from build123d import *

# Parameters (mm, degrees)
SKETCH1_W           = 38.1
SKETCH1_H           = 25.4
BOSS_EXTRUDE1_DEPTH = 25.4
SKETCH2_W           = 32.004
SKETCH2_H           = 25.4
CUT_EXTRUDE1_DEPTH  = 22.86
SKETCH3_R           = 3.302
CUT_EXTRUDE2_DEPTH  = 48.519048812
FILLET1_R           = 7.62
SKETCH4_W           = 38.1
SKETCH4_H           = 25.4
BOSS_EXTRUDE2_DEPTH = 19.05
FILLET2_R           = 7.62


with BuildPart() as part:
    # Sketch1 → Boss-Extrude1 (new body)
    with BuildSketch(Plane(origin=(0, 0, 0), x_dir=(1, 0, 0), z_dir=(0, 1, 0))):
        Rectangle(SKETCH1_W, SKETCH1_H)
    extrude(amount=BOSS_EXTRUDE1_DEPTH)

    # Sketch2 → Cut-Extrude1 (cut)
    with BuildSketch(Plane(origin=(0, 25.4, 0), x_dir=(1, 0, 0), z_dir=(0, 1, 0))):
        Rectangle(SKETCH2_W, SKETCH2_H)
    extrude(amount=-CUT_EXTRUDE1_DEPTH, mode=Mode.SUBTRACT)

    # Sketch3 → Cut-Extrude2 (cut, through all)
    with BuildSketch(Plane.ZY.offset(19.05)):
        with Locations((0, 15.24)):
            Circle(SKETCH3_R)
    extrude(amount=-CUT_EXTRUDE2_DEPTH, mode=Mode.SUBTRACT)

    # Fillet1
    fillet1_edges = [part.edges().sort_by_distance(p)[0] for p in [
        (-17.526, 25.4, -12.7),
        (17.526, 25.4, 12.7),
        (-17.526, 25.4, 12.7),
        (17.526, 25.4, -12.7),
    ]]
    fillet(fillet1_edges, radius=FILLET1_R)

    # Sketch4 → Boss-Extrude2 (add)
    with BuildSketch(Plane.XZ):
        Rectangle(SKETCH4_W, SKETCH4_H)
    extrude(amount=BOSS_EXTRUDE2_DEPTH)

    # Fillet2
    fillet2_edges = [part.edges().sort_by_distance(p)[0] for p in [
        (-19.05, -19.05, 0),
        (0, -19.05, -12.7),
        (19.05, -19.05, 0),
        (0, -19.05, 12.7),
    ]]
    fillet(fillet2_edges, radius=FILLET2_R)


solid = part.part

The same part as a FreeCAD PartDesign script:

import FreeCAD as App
import Part
import Sketcher

V = App.Vector
Q = App.Units.Quantity


def edges_at(feature, points):
    """Names of the edges that pass closest to the given points."""
    edges = feature.Shape.Edges
    near = lambda p: min(range(len(edges)), key=lambda i: edges[i].distToShape(Part.Vertex(*p))[0])
    return sorted({f"Edge{near(p) + 1}" for p in points})

doc = App.newDocument("Part")
body = doc.addObject("PartDesign::Body", "Body")

sketch1 = body.newObject("Sketcher::SketchObject", "Sketch")
sketch1.AttachmentSupport = (doc.getObject("XZ_Plane"), [""])
sketch1.MapMode = "FlatFace"
sketch1.addGeometry([
    Part.LineSegment(V(-19.05, -12.7, 0), V(-19.05, 12.7, 0)),
    Part.LineSegment(V(-19.05, 12.7, 0), V(19.05, 12.7, 0)),
    Part.LineSegment(V(19.05, 12.7, 0), V(19.05, -12.7, 0)),
    Part.LineSegment(V(19.05, -12.7, 0), V(-19.05, -12.7, 0)),
], False)
sketch1.addConstraint([
    Sketcher.Constraint("Coincident", 0, 2, 1, 1),
    Sketcher.Constraint("Coincident", 1, 2, 2, 1),
    Sketcher.Constraint("Coincident", 2, 2, 3, 1),
    Sketcher.Constraint("Coincident", 3, 2, 0, 1),
    Sketcher.Constraint("Vertical", 0),
    Sketcher.Constraint("Horizontal", 1),
    Sketcher.Constraint("Vertical", 2),
    Sketcher.Constraint("Horizontal", 3),
    Sketcher.Constraint("Symmetric", 0, 2, 2, 2, -1, 1),
    Sketcher.Constraint("DistanceY", 0, 1, 0, 2, Q("1 in")),
    Sketcher.Constraint("DistanceX", 1, 1, 1, 2, Q("1.5 in")),
])
pad1 = body.newObject("PartDesign::Pad", "Pad")
pad1.Profile = sketch1
pad1.Length = Q("1 in")
pad1.Reversed = True

sketch2 = body.newObject("Sketcher::SketchObject", "Sketch001")
sketch2.AttachmentSupport = (doc.getObject("XZ_Plane"), [""])
sketch2.MapMode = "FlatFace"
sketch2.AttachmentOffset = App.Placement(V(0, 0, -1 * 25.4), App.Rotation())
sketch2.addGeometry([
    Part.LineSegment(V(-16.002, -12.7, 0), V(-16.002, 12.7, 0)),
    Part.LineSegment(V(-16.002, 12.7, 0), V(16.002, 12.7, 0)),
    Part.LineSegment(V(16.002, 12.7, 0), V(16.002, -12.7, 0)),
    Part.LineSegment(V(16.002, -12.7, 0), V(-16.002, -12.7, 0)),
], False)
sketch2.addConstraint([
    Sketcher.Constraint("Coincident", 0, 2, 1, 1),
    Sketcher.Constraint("Coincident", 1, 2, 2, 1),
    Sketcher.Constraint("Coincident", 2, 2, 3, 1),
    Sketcher.Constraint("Coincident", 3, 2, 0, 1),
    Sketcher.Constraint("Vertical", 0),
    Sketcher.Constraint("Horizontal", 1),
    Sketcher.Constraint("Vertical", 2),
    Sketcher.Constraint("Horizontal", 3),
    Sketcher.Constraint("Symmetric", 0, 2, 2, 2, -1, 1),
    Sketcher.Constraint("DistanceY", 0, 1, 0, 2, Q("1 in")),
    Sketcher.Constraint("DistanceX", 1, 1, 1, 2, Q("1.26 in")),
])
pocket1 = body.newObject("PartDesign::Pocket", "Pocket")
pocket1.Profile = sketch2
pocket1.Length = Q("0.9 in")
pocket1.Reversed = True

sketch3 = body.newObject("Sketcher::SketchObject", "Sketch002")
sketch3.AttachmentSupport = (doc.getObject("YZ_Plane"), [""])
sketch3.MapMode = "FlatFace"
sketch3.AttachmentOffset = App.Placement(V(0, 0, -0.75 * 25.4), App.Rotation())
sketch3.addGeometry(Part.Circle(V(15.24, 0, 0), V(0, 0, 1), 3.302), False)
sketch3.addConstraint([
    Sketcher.Constraint("PointOnObject", 0, 3, -1),
    Sketcher.Constraint("Diameter", 0, Q("0.26 in")),
    Sketcher.Constraint("DistanceX", -1, 1, 0, 3, Q("0.6 in")),
])
pocket2 = body.newObject("PartDesign::Pocket", "Pocket001")
pocket2.Profile = sketch3
pocket2.Type = "ThroughAll"
pocket2.Reversed = True
doc.recompute()

fillet = body.newObject("PartDesign::Fillet", "Fillet")
fillet.Base = (pocket2, edges_at(pocket2, [
    (-17.526, 25.4, -12.7),
    (17.526, 25.4, 12.7),
    (-17.526, 25.4, 12.7),
    (17.526, 25.4, -12.7),
]))
fillet.Radius = Q("0.3 in")

sketch4 = body.newObject("Sketcher::SketchObject", "Sketch003")
sketch4.AttachmentSupport = (doc.getObject("XZ_Plane"), [""])
sketch4.MapMode = "FlatFace"
sketch4.addGeometry([
    Part.LineSegment(V(-19.05, 12.7, 0), V(-19.05, -12.7, 0)),
    Part.LineSegment(V(-19.05, -12.7, 0), V(19.05, -12.7, 0)),
    Part.LineSegment(V(19.05, -12.7, 0), V(19.05, 12.7, 0)),
    Part.LineSegment(V(19.05, 12.7, 0), V(-19.05, 12.7, 0)),
], False)
sketch4.addConstraint([
    Sketcher.Constraint("Coincident", 0, 2, 1, 1),
    Sketcher.Constraint("Coincident", 1, 2, 2, 1),
    Sketcher.Constraint("Coincident", 2, 2, 3, 1),
    Sketcher.Constraint("Coincident", 3, 2, 0, 1),
    Sketcher.Constraint("Vertical", 0),
    Sketcher.Constraint("Horizontal", 1),
    Sketcher.Constraint("Vertical", 2),
    Sketcher.Constraint("Horizontal", 3),
    Sketcher.Constraint("Symmetric", 0, 2, 2, 2, -1, 1),
    Sketcher.Constraint("DistanceY", 0, 2, 0, 1, Q("1 in")),
    Sketcher.Constraint("DistanceX", 1, 1, 1, 2, Q("1.5 in")),
])
pad2 = body.newObject("PartDesign::Pad", "Pad001")
pad2.Profile = sketch4
pad2.Length = Q("0.75 in")
doc.recompute()

fillet2 = body.newObject("PartDesign::Fillet", "Fillet001")
fillet2.Base = (pad2, edges_at(pad2, [
    (-19.05, -19.05, 0),
    (0, -19.05, -12.7),
    (19.05, -19.05, 0),
    (0, -19.05, 12.7),
]))
fillet2.Radius = Q("0.3 in")

doc.recompute()
